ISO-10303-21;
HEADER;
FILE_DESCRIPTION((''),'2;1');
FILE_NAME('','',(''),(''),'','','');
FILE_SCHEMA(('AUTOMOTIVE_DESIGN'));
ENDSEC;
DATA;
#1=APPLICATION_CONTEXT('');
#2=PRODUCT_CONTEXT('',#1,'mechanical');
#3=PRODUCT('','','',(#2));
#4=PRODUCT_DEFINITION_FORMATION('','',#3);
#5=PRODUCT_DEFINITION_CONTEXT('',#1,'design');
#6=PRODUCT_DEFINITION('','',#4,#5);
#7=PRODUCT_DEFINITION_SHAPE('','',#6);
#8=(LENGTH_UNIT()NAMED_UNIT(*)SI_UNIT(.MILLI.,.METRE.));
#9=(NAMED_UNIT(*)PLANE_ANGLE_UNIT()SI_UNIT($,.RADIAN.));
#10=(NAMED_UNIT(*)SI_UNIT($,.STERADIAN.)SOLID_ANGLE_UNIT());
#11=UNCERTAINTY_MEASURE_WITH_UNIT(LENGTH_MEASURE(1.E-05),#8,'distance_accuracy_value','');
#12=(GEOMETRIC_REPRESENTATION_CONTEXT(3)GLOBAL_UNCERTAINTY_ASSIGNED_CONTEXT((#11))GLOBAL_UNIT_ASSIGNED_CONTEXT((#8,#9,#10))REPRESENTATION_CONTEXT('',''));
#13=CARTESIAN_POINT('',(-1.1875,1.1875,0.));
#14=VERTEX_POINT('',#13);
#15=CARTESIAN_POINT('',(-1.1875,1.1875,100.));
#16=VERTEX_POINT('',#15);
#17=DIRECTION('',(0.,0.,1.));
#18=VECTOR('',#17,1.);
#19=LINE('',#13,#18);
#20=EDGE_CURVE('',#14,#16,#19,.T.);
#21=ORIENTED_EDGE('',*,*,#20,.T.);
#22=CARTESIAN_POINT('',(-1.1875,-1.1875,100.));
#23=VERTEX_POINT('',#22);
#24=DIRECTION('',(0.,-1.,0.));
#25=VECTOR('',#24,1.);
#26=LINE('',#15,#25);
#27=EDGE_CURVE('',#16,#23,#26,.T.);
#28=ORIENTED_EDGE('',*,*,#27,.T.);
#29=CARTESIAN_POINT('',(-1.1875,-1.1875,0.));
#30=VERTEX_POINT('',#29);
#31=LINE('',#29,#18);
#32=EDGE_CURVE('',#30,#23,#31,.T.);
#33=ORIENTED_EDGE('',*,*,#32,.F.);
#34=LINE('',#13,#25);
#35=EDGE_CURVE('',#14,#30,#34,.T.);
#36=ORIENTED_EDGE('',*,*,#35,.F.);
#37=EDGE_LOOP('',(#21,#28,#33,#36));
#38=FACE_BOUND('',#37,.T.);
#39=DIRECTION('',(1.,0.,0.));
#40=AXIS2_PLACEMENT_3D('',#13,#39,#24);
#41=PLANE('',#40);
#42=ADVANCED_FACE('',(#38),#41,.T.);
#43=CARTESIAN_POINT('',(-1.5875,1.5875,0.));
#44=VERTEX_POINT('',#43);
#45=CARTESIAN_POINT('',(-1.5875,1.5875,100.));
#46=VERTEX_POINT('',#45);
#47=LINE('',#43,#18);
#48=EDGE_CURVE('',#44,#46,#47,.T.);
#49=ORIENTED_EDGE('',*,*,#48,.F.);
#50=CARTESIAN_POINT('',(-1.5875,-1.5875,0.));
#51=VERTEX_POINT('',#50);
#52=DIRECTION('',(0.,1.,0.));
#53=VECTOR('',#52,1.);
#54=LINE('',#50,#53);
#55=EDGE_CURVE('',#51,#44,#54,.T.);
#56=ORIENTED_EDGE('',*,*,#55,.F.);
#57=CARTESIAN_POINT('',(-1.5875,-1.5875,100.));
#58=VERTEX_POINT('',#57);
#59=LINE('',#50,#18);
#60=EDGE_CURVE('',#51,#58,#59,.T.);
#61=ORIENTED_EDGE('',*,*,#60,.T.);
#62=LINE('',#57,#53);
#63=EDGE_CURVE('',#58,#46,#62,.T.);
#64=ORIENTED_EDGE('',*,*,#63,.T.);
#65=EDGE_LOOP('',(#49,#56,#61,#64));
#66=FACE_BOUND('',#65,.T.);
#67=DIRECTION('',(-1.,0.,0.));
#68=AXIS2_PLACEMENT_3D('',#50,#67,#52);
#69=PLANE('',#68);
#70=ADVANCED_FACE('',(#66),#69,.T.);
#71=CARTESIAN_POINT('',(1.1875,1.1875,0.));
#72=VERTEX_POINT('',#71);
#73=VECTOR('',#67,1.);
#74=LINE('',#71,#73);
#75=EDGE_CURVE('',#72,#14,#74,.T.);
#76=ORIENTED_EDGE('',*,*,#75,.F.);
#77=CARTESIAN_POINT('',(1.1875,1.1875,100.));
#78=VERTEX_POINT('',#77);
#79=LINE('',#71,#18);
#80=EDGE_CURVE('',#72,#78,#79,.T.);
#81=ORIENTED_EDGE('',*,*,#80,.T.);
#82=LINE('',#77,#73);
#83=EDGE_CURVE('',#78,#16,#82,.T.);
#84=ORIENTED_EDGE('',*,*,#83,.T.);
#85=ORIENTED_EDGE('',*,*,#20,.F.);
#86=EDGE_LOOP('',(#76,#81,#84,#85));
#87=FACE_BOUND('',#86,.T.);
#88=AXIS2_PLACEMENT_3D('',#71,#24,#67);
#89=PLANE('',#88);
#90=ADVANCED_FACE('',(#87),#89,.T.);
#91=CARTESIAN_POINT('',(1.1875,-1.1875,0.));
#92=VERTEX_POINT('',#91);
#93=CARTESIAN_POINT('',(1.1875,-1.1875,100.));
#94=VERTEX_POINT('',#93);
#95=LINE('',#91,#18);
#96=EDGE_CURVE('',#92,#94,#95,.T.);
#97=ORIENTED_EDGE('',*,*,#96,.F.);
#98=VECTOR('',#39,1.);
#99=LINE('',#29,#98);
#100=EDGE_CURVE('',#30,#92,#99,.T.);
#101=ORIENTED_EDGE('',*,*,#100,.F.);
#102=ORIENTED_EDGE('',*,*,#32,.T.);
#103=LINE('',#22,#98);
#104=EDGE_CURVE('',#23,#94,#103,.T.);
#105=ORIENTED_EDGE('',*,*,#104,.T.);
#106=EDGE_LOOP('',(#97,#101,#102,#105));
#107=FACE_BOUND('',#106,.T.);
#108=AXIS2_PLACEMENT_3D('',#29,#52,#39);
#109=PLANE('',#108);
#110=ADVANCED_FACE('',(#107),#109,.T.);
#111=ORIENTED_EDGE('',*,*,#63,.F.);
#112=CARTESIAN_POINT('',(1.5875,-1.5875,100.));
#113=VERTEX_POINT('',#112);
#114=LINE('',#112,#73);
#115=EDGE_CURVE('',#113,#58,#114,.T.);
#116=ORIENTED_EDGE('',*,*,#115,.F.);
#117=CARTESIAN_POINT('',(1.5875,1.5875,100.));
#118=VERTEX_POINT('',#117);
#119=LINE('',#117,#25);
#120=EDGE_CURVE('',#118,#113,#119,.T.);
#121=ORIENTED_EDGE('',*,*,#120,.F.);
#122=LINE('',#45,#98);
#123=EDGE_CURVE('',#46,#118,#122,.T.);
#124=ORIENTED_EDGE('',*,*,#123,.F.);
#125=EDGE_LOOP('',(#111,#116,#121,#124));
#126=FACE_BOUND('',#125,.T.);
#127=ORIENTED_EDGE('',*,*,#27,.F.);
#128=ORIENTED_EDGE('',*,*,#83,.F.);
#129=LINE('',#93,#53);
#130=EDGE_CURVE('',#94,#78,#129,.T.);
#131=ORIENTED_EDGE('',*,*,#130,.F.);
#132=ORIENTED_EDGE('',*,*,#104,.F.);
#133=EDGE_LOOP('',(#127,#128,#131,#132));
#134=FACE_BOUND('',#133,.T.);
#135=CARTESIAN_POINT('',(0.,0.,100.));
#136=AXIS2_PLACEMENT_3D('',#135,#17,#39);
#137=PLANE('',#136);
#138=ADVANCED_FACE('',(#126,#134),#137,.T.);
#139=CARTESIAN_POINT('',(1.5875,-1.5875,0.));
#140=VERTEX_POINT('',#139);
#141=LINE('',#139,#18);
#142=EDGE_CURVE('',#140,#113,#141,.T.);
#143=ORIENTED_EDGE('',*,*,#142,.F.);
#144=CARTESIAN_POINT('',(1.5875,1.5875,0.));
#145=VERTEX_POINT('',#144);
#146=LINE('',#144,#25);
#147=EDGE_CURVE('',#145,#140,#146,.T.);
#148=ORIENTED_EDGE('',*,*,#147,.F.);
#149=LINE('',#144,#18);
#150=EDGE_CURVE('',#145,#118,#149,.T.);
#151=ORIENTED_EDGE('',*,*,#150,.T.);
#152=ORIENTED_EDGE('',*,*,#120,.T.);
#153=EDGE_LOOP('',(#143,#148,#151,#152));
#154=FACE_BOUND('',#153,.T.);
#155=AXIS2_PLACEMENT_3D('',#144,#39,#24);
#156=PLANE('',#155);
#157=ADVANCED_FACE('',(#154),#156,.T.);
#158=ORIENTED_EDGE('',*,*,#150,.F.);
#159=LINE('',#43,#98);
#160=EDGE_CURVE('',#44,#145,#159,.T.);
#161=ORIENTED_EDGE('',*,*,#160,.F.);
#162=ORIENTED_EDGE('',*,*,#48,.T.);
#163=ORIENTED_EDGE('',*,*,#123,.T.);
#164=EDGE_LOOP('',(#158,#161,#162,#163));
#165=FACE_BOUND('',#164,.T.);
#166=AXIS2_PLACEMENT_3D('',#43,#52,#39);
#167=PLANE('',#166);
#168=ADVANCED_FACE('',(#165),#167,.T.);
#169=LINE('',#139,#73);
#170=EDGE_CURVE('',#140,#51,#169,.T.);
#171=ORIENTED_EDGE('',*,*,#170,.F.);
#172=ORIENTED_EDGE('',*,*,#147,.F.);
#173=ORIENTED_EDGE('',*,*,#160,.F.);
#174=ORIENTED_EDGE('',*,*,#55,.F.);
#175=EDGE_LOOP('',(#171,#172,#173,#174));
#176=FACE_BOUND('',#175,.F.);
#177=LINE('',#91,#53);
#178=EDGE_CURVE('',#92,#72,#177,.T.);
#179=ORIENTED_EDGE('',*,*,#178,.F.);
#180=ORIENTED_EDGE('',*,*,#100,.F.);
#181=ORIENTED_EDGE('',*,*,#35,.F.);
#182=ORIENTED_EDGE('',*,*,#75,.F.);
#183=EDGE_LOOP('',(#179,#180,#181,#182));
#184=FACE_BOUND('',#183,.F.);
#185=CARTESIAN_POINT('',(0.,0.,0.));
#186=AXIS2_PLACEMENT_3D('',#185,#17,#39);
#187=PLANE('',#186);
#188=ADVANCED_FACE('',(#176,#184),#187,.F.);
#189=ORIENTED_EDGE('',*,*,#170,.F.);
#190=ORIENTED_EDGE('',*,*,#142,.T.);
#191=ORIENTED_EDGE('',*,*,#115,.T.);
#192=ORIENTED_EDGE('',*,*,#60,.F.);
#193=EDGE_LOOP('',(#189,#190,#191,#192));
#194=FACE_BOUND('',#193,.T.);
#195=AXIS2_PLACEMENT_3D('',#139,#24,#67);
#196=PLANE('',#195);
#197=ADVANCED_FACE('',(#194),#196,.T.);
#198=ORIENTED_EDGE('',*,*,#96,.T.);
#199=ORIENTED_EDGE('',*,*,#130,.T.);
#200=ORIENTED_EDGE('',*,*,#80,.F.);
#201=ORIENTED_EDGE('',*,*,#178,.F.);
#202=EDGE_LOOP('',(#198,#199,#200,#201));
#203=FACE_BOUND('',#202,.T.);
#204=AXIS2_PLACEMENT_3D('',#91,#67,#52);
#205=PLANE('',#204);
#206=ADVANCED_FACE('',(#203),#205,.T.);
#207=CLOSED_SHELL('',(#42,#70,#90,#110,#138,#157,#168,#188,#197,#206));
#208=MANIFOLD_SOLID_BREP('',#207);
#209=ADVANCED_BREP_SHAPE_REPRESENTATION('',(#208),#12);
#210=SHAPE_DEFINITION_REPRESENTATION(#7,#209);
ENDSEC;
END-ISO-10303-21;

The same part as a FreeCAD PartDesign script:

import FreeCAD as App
import Part
import Sketcher
from FreeCAD import Vector
Q = App.Units.Quantity


def add_polygon(sketch, points):
    """Adds a closed chain of lines whose ends are joined by coincident constraints."""
    first, n = sketch.GeometryCount, len(points)
    for a, b in zip(points, points[1:] + points[:1]):
        sketch.addGeometry(Part.LineSegment(App.Vector(*a, 0), App.Vector(*b, 0)), False)
    for i in range(n):
        sketch.addConstraint(Sketcher.Constraint("Coincident", first + i, 2, first + (i + 1) % n, 1))

doc = App.newDocument("Part")
body = doc.addObject("PartDesign::Body", "Body")

sketch1 = body.newObject("Sketcher::SketchObject", "Sketch")
sketch1.AttachmentSupport = (doc.getObject("XY_Plane"), [""])
sketch1.MapMode = "FlatFace"
add_polygon(sketch1, [(1.5875, 1.5875), (-1.5875, 1.5875), (-1.5875, -1.5875), (1.5875, -1.5875)])
add_polygon(sketch1, [(1.1875, -1.1875), (-1.1875, -1.1875), (-1.1875, 1.1875), (1.1875, 1.1875)])
sketch1.addConstraint([
    Sketcher.Constraint("Horizontal", 0),
    Sketcher.Constraint("Vertical", 1),
    Sketcher.Constraint("Horizontal", 2),
    Sketcher.Constraint("Vertical", 3),
    Sketcher.Constraint("Horizontal", 4),
    Sketcher.Constraint("Vertical", 5),
    Sketcher.Constraint("Horizontal", 6),
    Sketcher.Constraint("Vertical", 7),
    Sketcher.Constraint("Symmetric", 0, 2, 2, 2, -1, 1),
    Sketcher.Constraint("Symmetric", 4, 2, 6, 2, -1, 1),
    Sketcher.Constraint("Equal", 2, 1),
    Sketcher.Constraint("Equal", 6, 5),
    Sketcher.Constraint("DistanceX", 0, 2, 0, 1, Q("0.125 in")),
    Sketcher.Constraint("DistanceX", 1, 2, 4, 2, Q("0.4 mm")),
])
pad1 = body.newObject("PartDesign::Pad", "Pad")
pad1.Profile = sketch1
pad1.Length = Q("3.9370079 in")

doc.recompute()
